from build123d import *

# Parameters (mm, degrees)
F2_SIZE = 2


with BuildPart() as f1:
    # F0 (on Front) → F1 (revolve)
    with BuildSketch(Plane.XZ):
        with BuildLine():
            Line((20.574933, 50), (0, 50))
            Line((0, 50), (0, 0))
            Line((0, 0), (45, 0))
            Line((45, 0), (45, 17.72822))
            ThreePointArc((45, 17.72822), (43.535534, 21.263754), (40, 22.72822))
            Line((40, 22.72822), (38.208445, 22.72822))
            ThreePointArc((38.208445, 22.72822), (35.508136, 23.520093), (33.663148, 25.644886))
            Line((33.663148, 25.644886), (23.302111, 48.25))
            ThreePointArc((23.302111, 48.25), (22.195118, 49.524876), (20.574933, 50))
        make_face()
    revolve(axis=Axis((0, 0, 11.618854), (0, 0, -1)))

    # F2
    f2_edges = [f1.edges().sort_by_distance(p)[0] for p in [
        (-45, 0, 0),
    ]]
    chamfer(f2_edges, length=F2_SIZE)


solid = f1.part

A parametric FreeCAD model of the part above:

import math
import FreeCAD as App
import Part
import Sketcher

V = App.Vector
Q = App.Units.Quantity


def edges_at(feature, points):
    """Names of the edges that pass closest to the given points."""
    edges = feature.Shape.Edges
    near = lambda p: min(range(len(edges)), key=lambda i: edges[i].distToShape(Part.Vertex(*p))[0])
    return sorted({f"Edge{near(p) + 1}" for p in points})

doc = App.newDocument("Part")
body = doc.addObject("PartDesign::Body", "Body")

# Sketch on XZ plane
sketch1 = body.newObject("Sketcher::SketchObject", "Sketch")
sketch1.AttachmentSupport = (doc.getObject("XZ_Plane"), [""])
sketch1.MapMode = "FlatFace"
sketch1.addGeometry(Part.LineSegment(V(20.6, 50, 0), V(0, 50, 0)), False)
sketch1.addGeometry(Part.LineSegment(V(0, 50, 0), V(0, 0, 0)), False)
sketch1.addGeometry(Part.LineSegment(V(0, 0, 0), V(45, 0, 0)), False)
sketch1.addGeometry(Part.LineSegment(V(45, 0, 0), V(45, 17.7, 0)), False)
sketch1.addGeometry(Part.ArcOfCircle(Part.Circle(V(40, 17.7, 0), V(0, 0, 1), 5), math.radians(0), math.radians(90)), False)
sketch1.addGeometry(Part.LineSegment(V(40, 22.7, 0), V(38.2, 22.7, 0)), False)
sketch1.addGeometry(Part.ArcOfCircle(Part.Circle(V(38.2, 27.7, 0), V(0, 0, 1), 5), math.radians(-155), math.radians(-90)), False)
sketch1.addGeometry(Part.LineSegment(V(33.7, 25.6, 0), V(23.3, 48.2, 0)), False)
sketch1.addGeometry(Part.ArcOfCircle(Part.Circle(V(20.6, 47, 0), V(0, 0, 1), 3), math.radians(25), math.radians(90)), False)
sketch1.addConstraint(Sketcher.Constraint("Coincident", 0, 2, 1, 1))
sketch1.addConstraint(Sketcher.Constraint("Coincident", 1, 2, 2, 1))
sketch1.addConstraint(Sketcher.Constraint("Coincident", 2, 2, 3, 1))
sketch1.addConstraint(Sketcher.Constraint("Tangent", 3, 2, 4, 1))
sketch1.addConstraint(Sketcher.Constraint("Tangent", 4, 2, 5, 1))
sketch1.addConstraint(Sketcher.Constraint("Tangent", 5, 2, 6, 2))
sketch1.addConstraint(Sketcher.Constraint("Tangent", 6, 1, 7, 1))
sketch1.addConstraint(Sketcher.Constraint("Tangent", 7, 2, 8, 1))
sketch1.addConstraint(Sketcher.Constraint("Tangent", 8, 2, 0, 1))
sketch1.addConstraint(Sketcher.Constraint("Horizontal", 0))
sketch1.addConstraint(Sketcher.Constraint("Vertical", 1))
sketch1.addConstraint(Sketcher.Constraint("Horizontal", 2))
sketch1.addConstraint(Sketcher.Constraint("Vertical", 3))
sketch1.addConstraint(Sketcher.Constraint("Horizontal", 5))
sketch1.addConstraint(Sketcher.Constraint("Coincident", 1, 2, -1, 1))
sketch1.addConstraint(Sketcher.Constraint("Equal", 4, 6))
sketch1.addConstraint(Sketcher.Constraint("Radius", 4, Q("5 mm")))
sketch1.addConstraint(Sketcher.Constraint("Radius", 8, Q("3.000001 mm")))
sketch1.addConstraint(Sketcher.Constraint("DistanceX", 2, 1, 2, 2, Q("45 mm")))
sketch1.addConstraint(Sketcher.Constraint("DistanceY", 1, 2, 1, 1, Q("50 mm")))
sketch1.addConstraint(Sketcher.Constraint("DistanceY", -1, 1, 7, 2, Q("48.25 mm")))
sketch1.addConstraint(Sketcher.Constraint("DistanceY", 3, 1, 3, 2, Q("17.72822 mm")))
sketch1.addConstraint(Sketcher.Constraint("DistanceX", 0, 2, 0, 1, Q("20.574933 mm")))
revolution = body.newObject("PartDesign::Revolution", "Revolution")
revolution.Profile = sketch1
revolution.ReferenceAxis = (sketch1, ["V_Axis"])
revolution.Angle = 360
doc.recompute()

chamfer = body.newObject("PartDesign::Chamfer", "Chamfer")
chamfer.Base = (revolution, edges_at(revolution, [(-45, 0, 0)]))
chamfer.Size = 2

doc.recompute()
